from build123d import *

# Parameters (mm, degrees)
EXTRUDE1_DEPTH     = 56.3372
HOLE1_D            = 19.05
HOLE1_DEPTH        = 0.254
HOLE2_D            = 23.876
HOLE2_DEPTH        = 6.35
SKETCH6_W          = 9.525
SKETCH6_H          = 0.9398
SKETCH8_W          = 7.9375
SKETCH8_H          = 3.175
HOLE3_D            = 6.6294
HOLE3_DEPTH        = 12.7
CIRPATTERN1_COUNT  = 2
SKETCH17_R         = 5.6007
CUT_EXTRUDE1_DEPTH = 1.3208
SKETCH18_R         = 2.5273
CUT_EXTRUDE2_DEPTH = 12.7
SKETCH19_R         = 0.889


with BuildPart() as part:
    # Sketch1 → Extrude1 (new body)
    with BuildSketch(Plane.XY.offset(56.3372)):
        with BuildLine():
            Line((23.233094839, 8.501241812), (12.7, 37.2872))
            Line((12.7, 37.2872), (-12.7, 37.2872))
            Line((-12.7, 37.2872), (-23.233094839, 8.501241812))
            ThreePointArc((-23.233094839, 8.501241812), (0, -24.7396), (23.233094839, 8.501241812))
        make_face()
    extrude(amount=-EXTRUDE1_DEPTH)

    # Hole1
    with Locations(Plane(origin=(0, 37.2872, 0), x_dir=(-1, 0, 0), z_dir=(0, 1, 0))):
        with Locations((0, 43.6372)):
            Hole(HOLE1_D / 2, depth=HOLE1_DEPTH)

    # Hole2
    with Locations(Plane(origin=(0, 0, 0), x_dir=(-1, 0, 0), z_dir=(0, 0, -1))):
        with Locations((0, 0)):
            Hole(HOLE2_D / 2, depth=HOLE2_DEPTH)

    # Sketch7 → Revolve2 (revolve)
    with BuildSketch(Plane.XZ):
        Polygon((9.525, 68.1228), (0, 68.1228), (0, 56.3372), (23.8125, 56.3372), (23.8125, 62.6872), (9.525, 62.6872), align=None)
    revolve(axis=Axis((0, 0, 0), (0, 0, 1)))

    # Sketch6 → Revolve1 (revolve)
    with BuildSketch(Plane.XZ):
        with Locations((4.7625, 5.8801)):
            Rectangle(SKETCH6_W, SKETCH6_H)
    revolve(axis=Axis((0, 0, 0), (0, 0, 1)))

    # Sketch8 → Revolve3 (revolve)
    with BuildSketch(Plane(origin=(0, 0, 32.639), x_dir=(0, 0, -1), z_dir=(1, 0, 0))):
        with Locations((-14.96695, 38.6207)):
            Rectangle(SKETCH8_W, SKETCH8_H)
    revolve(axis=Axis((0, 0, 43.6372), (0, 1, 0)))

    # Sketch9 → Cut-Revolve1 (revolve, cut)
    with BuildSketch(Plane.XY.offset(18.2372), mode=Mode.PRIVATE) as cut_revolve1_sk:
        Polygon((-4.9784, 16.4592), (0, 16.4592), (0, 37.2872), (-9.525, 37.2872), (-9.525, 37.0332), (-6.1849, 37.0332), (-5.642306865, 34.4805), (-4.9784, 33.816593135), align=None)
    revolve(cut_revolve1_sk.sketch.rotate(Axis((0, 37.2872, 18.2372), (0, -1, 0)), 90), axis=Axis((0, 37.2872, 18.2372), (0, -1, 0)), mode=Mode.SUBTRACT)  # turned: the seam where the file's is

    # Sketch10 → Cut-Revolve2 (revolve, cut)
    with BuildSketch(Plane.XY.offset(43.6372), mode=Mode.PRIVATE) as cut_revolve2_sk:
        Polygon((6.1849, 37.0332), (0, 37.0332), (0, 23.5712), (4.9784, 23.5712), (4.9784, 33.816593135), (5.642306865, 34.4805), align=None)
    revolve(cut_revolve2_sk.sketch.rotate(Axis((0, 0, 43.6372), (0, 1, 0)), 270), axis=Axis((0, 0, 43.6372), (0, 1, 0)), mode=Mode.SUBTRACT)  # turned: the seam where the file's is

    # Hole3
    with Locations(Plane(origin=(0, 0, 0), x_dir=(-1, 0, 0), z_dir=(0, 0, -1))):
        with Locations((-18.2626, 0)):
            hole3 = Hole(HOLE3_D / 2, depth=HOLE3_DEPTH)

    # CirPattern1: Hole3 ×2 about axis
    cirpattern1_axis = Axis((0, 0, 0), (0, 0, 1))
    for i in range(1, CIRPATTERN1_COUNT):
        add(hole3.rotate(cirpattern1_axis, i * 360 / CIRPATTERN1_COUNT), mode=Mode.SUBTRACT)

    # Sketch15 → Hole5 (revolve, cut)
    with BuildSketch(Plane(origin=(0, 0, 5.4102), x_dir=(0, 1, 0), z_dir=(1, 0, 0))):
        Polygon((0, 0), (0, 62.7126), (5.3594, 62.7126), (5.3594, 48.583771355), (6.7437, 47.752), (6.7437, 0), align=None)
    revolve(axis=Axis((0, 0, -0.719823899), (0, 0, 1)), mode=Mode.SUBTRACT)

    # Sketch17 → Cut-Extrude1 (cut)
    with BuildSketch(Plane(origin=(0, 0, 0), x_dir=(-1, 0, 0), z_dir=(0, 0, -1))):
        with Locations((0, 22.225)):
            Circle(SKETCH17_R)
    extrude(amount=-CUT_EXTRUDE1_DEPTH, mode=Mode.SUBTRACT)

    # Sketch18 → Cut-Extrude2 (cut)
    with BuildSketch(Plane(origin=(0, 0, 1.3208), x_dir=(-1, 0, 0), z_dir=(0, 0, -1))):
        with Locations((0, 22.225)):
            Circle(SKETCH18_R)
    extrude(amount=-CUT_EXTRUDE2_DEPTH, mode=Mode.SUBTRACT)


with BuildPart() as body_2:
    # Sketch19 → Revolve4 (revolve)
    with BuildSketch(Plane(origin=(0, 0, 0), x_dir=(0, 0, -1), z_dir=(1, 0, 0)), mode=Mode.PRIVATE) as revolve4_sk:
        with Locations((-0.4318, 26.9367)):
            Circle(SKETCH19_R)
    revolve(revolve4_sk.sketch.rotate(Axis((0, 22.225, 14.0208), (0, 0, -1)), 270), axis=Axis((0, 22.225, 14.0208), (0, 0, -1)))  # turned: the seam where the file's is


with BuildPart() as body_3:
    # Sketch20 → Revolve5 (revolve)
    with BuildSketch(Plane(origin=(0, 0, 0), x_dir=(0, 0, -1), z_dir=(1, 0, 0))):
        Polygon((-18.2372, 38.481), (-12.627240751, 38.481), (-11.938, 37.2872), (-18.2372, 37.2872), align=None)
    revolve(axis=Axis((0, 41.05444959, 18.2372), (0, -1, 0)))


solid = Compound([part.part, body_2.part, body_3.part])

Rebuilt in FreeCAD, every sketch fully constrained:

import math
import FreeCAD as App
import Part
import Sketcher
Q = App.Units.Quantity


def add_polygon(sketch, points):
    """Adds a closed chain of lines whose ends are joined by coincident constraints."""
    first, n = sketch.GeometryCount, len(points)
    for a, b in zip(points, points[1:] + points[:1]):
        sketch.addGeometry(Part.LineSegment(App.Vector(*a, 0), App.Vector(*b, 0)), False)
    for i in range(n):
        sketch.addConstraint(Sketcher.Constraint("Coincident", first + i, 2, first + (i + 1) % n, 1))

doc = App.newDocument("Part")
params = doc.addObject("Spreadsheet::Sheet", "Params")
for row, (alias, value) in enumerate([
    ("sketch1_width", "1 in"),
    ("sketch1_radius", "0.974 in"),
    ("pad1_length", "2.218 in"),
    ("sketch2_diameter", "0.75 in"),
    ("hole_diameter", "0.75 in"),
    ("hole_depth", "0.01 in"),
    ("sketch3_diameter", "0.94 in"),
    ("hole2_diameter", "0.94 in"),
    ("hole2_depth", "0.25 in"),
    ("sketch4_height", "0.25 in"),
    ("sketch4_width", "0.375 in"),
    ("sketch4_width2", "0.9375 in"),
    ("sketch4_height2", "0.464 in"),
    ("revolution_angle", "360 deg"),
    ("sketch5_width", "0.375 in"),
    ("sketch5_height", "0.037 in"),
    ("revolution2_angle", "360 deg"),
    ("sketch6_width", "0.125 in"),
    ("sketch6_height", "0.3125 in"),
    ("revolution3_angle", "360 deg"),
    ("sketch7_height", "0.82 in"),
    ("sketch7_height2", "0.01 in"),
    ("sketch7_width", "0.196 in"),
    ("sketch7_width2", "0.375 in"),
    ("groove_angle", "360 deg"),
    ("sketch8_height", "0.53 in"),
    ("sketch8_width", "0.196 in"),
    ("groove2_angle", "360 deg"),
    ("sketch9_diameter", "0.261 in"),
    ("hole3_diameter", "0.261 in"),
    ("hole3_depth", "0.5 in"),
    ("sketch10_height", "1.88 in"),
    ("sketch10_width", "0.211 in"),
    ("sketch10_height2", "2.469 in"),
    ("groove3_angle", "360 deg"),
    ("sketch11_diameter", "0.441 in"),
    ("pocket1_length", "0.052 in"),
    ("sketch12_diameter", "0.199 in"),
    ("pocket2_length", "0.5 in"),
    ("sketch13_diameter", "0.07 in"),
    ("revolution4_angle", "360 deg"),
    ("sketch14_width", "0.047 in"),
    ("sketch14_height", "0.248 in"),
    ("revolution5_angle", "360 deg"),
], start=1):
    params.set(f"A{row}", alias)
    params.set(f"B{row}", "=" + value)
    params.setAlias(f"B{row}", alias)

body = doc.addObject("PartDesign::Body", "Body")

sketch1 = body.newObject("Sketcher::SketchObject", "Sketch")
sketch1.AttachmentSupport = (doc.getObject("XY_Plane"), [""])
sketch1.MapMode = "FlatFace"
sketch1.AttachmentOffset = App.Placement(App.Vector(0, 0, 2.218 * 25.4), App.Rotation())
sketch1.addGeometry([
    Part.LineSegment(App.Vector(23.233095, 8.501242, 0), App.Vector(12.7, 37.2872, 0)),
    Part.LineSegment(App.Vector(12.7, 37.2872, 0), App.Vector(-12.7, 37.2872, 0)),
    Part.LineSegment(App.Vector(-12.7, 37.2872, 0), App.Vector(-23.233095, 8.501242, 0)),
    Part.ArcOfCircle(Part.Circle(App.Vector(0, 0, 0), App.Vector(0, 0, 1), 24.7396), math.radians(159.901878), math.radians(380.098122)),
], False)
sketch1.addConstraint([
    Sketcher.Constraint("Coincident", 0, 2, 1, 1),
    Sketcher.Constraint("Coincident", 1, 2, 2, 1),
    Sketcher.Constraint("Tangent", 2, 2, 3, 1),
    Sketcher.Constraint("Tangent", 3, 2, 0, 1),
    Sketcher.Constraint("Horizontal", 1),
    Sketcher.Constraint("Coincident", 3, 3, -1, 1),
    Sketcher.Constraint("Horizontal", 2, 2, 3, 2),
    Sketcher.Constraint("DistanceX", 1, 2, 1, 1, Q("1 in")),
    Sketcher.Constraint("Radius", 3, Q("0.974 in")),
    Sketcher.Constraint("DistanceY", -1, 1, 0, 2, Q("1.468 in")),
])
sketch1.setExpression("Constraints[7]", "Params.sketch1_width")
sketch1.setExpression("Constraints[8]", "Params.sketch1_radius")
pad1 = body.newObject("PartDesign::Pad", "Pad")
pad1.Profile = sketch1
pad1.setExpression("Length", "Params.pad1_length")
pad1.Reversed = True

sketch2 = body.newObject("Sketcher::SketchObject", "Sketch001")
sketch2.AttachmentSupport = (doc.getObject("XZ_Plane"), [""])
sketch2.MapMode = "FlatFace"
sketch2.AttachmentOffset = App.Placement(App.Vector(0, 0, -1.468 * 25.4), App.Rotation())
sketch2.addGeometry(Part.Circle(App.Vector(0, 43.6372, 0), App.Vector(0, 0, 1), 9.525), False)
sketch2.addConstraint([
    Sketcher.Constraint("PointOnObject", 0, 3, -2),
    Sketcher.Constraint("Diameter", 0, Q("0.75 in")),
    Sketcher.Constraint("DistanceY", -1, 1, 0, 3, Q("1.718 in")),
])
sketch2.setExpression("Constraints[1]", "Params.sketch2_diameter")
doc.recompute()
hole = body.newObject("PartDesign::Hole", "Hole")
hole.Profile = sketch2
hole.ThreadType = "None"
hole.setExpression("Diameter", "Params.hole_diameter")
hole.DepthType = "Dimension"
hole.setExpression("Depth", "Params.hole_depth")
hole.DrillPoint = "Flat"
hole.Reversed = True

sketch3 = body.newObject("Sketcher::SketchObject", "Sketch002")
sketch3.AttachmentSupport = (doc.getObject("XY_Plane"), [""])
sketch3.MapMode = "FlatFace"
sketch3.addGeometry(Part.Circle(App.Vector(0, 0, 0), App.Vector(0, 0, 1), 11.938), False)
sketch3.addConstraint([
    Sketcher.Constraint("Coincident", 0, 3, -1, 1),
    Sketcher.Constraint("Diameter", 0, Q("0.94 in")),
])
sketch3.setExpression("Constraints[1]", "Params.sketch3_diameter")
doc.recompute()
hole2 = body.newObject("PartDesign::Hole", "Hole001")
hole2.Profile = sketch3
hole2.ThreadType = "None"
hole2.setExpression("Diameter", "Params.hole2_diameter")
hole2.DepthType = "Dimension"
hole2.setExpression("Depth", "Params.hole2_depth")
hole2.DrillPoint = "Flat"
hole2.Reversed = True

sketch4 = body.newObject("Sketcher::SketchObject", "Sketch003")
sketch4.AttachmentSupport = (doc.getObject("XZ_Plane"), [""])
sketch4.MapMode = "FlatFace"
add_polygon(sketch4, [(9.525, 68.1228), (0, 68.1228), (0, 56.3372), (23.8125, 56.3372), (23.8125, 62.6872), (9.525, 62.6872)])
sketch4.addConstraint([
    Sketcher.Constraint("Horizontal", 0),
    Sketcher.Constraint("Vertical", 1),
    Sketcher.Constraint("Horizontal", 2),
    Sketcher.Constraint("Vertical", 3),
    Sketcher.Constraint("Horizontal", 4),
    Sketcher.Constraint("Vertical", 5),
    Sketcher.Constraint("PointOnObject", 0, 2, -2),
    Sketcher.Constraint("DistanceY", 3, 1, 3, 2, Q("0.25 in")),
    Sketcher.Constraint("DistanceX", 0, 2, 0, 1, Q("0.375 in")),
    Sketcher.Constraint("DistanceX", 2, 1, 2, 2, Q("0.9375 in")),
    Sketcher.Constraint("DistanceY", 1, 2, 1, 1, Q("0.464 in")),
    Sketcher.Constraint("DistanceY", -1, 1, 0, 2, Q("2.682 in")),
])
sketch4.setExpression("Constraints[13]", "Params.sketch4_height")
sketch4.setExpression("Constraints[14]", "Params.sketch4_width")
sketch4.setExpression("Constraints[15]", "Params.sketch4_width2")
sketch4.setExpression("Constraints[16]", "Params.sketch4_height2")
revolution = body.newObject("PartDesign::Revolution", "Revolution")
revolution.Profile = sketch4
revolution.ReferenceAxis = (sketch4, ["V_Axis"])
revolution.setExpression("Angle", "Params.revolution_angle")

sketch5 = body.newObject("Sketcher::SketchObject", "Sketch004")
sketch5.AttachmentSupport = (doc.getObject("XZ_Plane"), [""])
sketch5.MapMode = "FlatFace"
add_polygon(sketch5, [(0, 6.35), (0, 5.4102), (9.525, 5.4102), (9.525, 6.35)])
sketch5.addConstraint([
    Sketcher.Constraint("Vertical", 0),
    Sketcher.Constraint("Horizontal", 1),
    Sketcher.Constraint("Vertical", 2),
    Sketcher.Constraint("Horizontal", 3),
    Sketcher.Constraint("PointOnObject", 0, 2, -2),
    Sketcher.Constraint("DistanceX", 1, 1, 1, 2, Q("0.375 in")),
    Sketcher.Constraint("DistanceY", 0, 2, 0, 1, Q("0.037 in")),
    Sketcher.Constraint("DistanceY", -1, 1, 2, 2, Q("0.25 in")),
])
sketch5.setExpression("Constraints[9]", "Params.sketch5_width")
sketch5.setExpression("Constraints[10]", "Params.sketch5_height")
revolution2 = body.newObject("PartDesign::Revolution", "Revolution001")
revolution2.Profile = sketch5
revolution2.ReferenceAxis = (sketch5, ["V_Axis"])
revolution2.setExpression("Angle", "Params.revolution2_angle")

sketch6 = body.newObject("Sketcher::SketchObject", "Sketch005")
sketch6.AttachmentSupport = (doc.getObject("YZ_Plane"), [""])
sketch6.MapMode = "FlatFace"
add_polygon(sketch6, [(40.2082, 51.5747), (37.0332, 51.5747), (37.0332, 43.6372), (40.2082, 43.6372)])
sketch6.addGeometry(Part.LineSegment(App.Vector(37.0332, 43.6372, 0), App.Vector(40.2082, 43.6372, 0)), True)
sketch6.addConstraint([
    Sketcher.Constraint("Horizontal", 0),
    Sketcher.Constraint("Vertical", 1),
    Sketcher.Constraint("Horizontal", 2),
    Sketcher.Constraint("Vertical", 3),
    Sketcher.Constraint("Horizontal", 4),
    Sketcher.Constraint("Coincident", 4, 1, 1, 2),
    Sketcher.Constraint("Vertical", 3, 2, 4, 2),
    Sketcher.Constraint("DistanceX", 0, 2, 0, 1, Q("0.125 in")),
    Sketcher.Constraint("DistanceY", 1, 2, 1, 1, Q("0.3125 in")),
    Sketcher.Constraint("DistanceX", -1, 1, 0, 2, Q("1.458 in")),
    Sketcher.Constraint("DistanceY", -1, 1, 1, 2, Q("1.718 in")),
])
sketch6.setExpression("Constraints[11]", "Params.sketch6_width")
sketch6.setExpression("Constraints[12]", "Params.sketch6_height")
revolution3 = body.newObject("PartDesign::Revolution", "Revolution002")
revolution3.Profile = sketch6
revolution3.ReferenceAxis = (sketch6, ["Axis0"])
revolution3.setExpression("Angle", "Params.revolution3_angle")

sketch7 = body.newObject("Sketcher::SketchObject", "Sketch006")
sketch7.AttachmentSupport = (doc.getObject("XY_Plane"), [""])
sketch7.MapMode = "FlatFace"
sketch7.AttachmentOffset = App.Placement(App.Vector(0, 0, 0.718 * 25.4), App.Rotation())
add_polygon(sketch7, [(-4.9784, 16.4592), (0, 16.4592), (0, 37.2872), (-9.525, 37.2872), (-9.525, 37.0332), (-6.1849, 37.0332), (-5.642307, 34.4805), (-4.9784, 33.816593)])
sketch7.addConstraint([
    Sketcher.Constraint("Horizontal", 0),
    Sketcher.Constraint("Vertical", 1),
    Sketcher.Constraint("Horizontal", 2),
    Sketcher.Constraint("Vertical", 3),
    Sketcher.Constraint("Horizontal", 4),
    Sketcher.Constraint("Vertical", 7),
    Sketcher.Constraint("PointOnObject", 0, 2, -2),
    Sketcher.Constraint("Angle", 5, Q("-78 deg")),
    Sketcher.Constraint("Angle", 6, Q("-45 deg")),
    Sketcher.Constraint("DistanceY", 1, 1, 1, 2, Q("0.82 in")),
    Sketcher.Constraint("DistanceY", 3, 2, 3, 1, Q("0.01 in")),
    Sketcher.Constraint("DistanceX", 0, 1, 0, 2, Q("0.196 in")),
    Sketcher.Constraint("DistanceX", 2, 2, 2, 1, Q("0.375 in")),
    Sketcher.Constraint("DistanceX", 4, 1, 4, 2, Q("0.1315 in")),
    Sketcher.Constraint("DistanceY", -1, 1, 0, 2, Q("0.648 in")),
    Sketcher.Constraint("DistanceY", -1, 1, 5, 2, Q("1.3575 in")),
])
sketch7.setExpression("Constraints[17]", "Params.sketch7_height")
sketch7.setExpression("Constraints[18]", "Params.sketch7_height2")
sketch7.setExpression("Constraints[19]", "Params.sketch7_width")
sketch7.setExpression("Constraints[20]", "Params.sketch7_width2")
groove = body.newObject("PartDesign::Groove", "Groove")
groove.Profile = sketch7
groove.ReferenceAxis = (sketch7, ["V_Axis"])
groove.setExpression("Angle", "Params.groove_angle")

sketch8 = body.newObject("Sketcher::SketchObject", "Sketch007")
sketch8.AttachmentSupport = (doc.getObject("XY_Plane"), [""])
sketch8.MapMode = "FlatFace"
sketch8.AttachmentOffset = App.Placement(App.Vector(0, 0, 1.718 * 25.4), App.Rotation())
add_polygon(sketch8, [(6.1849, 37.0332), (0, 37.0332), (0, 23.5712), (4.9784, 23.5712), (4.9784, 33.816593), (5.642307, 34.4805)])
sketch8.addConstraint([
    Sketcher.Constraint("Horizontal", 0),
    Sketcher.Constraint("Vertical", 1),
    Sketcher.Constraint("Horizontal", 2),
    Sketcher.Constraint("Vertical", 3),
    Sketcher.Constraint("PointOnObject", 0, 2, -2),
    Sketcher.Constraint("Angle", 4, Q("45 deg")),
    Sketcher.Constraint("Angle", 5, Q("78 deg")),
    Sketcher.Constraint("DistanceY", 1, 2, 1, 1, Q("0.53 in")),
    Sketcher.Constraint("DistanceX", 2, 1, 2, 2, Q("0.196 in")),
    Sketcher.Constraint("DistanceX", 0, 2, 0, 1, Q("0.2435 in")),
    Sketcher.Constraint("DistanceY", -1, 1, 0, 2, Q("1.458 in")),
    Sketcher.Constraint("DistanceY", -1, 1, 4, 2, Q("1.3575 in")),
])
sketch8.setExpression("Constraints[13]", "Params.sketch8_height")
sketch8.setExpression("Constraints[14]", "Params.sketch8_width")
groove2 = body.newObject("PartDesign::Groove", "Groove001")
groove2.Profile = sketch8
groove2.ReferenceAxis = (sketch8, ["V_Axis"])
groove2.setExpression("Angle", "Params.groove2_angle")

sketch9 = body.newObject("Sketcher::SketchObject", "Sketch008")
sketch9.AttachmentSupport = (doc.getObject("XY_Plane"), [""])
sketch9.MapMode = "FlatFace"
sketch9.addGeometry(Part.Circle(App.Vector(18.2626, 0, 0), App.Vector(0, 0, 1), 3.3147), False)
sketch9.addConstraint([
    Sketcher.Constraint("PointOnObject", 0, 3, -1),
    Sketcher.Constraint("Diameter", 0, Q("0.261 in")),
    Sketcher.Constraint("DistanceX", -1, 1, 0, 3, Q("0.719 in")),
])
sketch9.setExpression("Constraints[1]", "Params.sketch9_diameter")
doc.recompute()
hole3 = body.newObject("PartDesign::Hole", "Hole002")
hole3.Profile = sketch9
hole3.ThreadType = "None"
hole3.setExpression("Diameter", "Params.hole3_diameter")
hole3.DepthType = "Dimension"
hole3.setExpression("Depth", "Params.hole3_depth")
hole3.DrillPoint = "Flat"
hole3.Reversed = True
doc.recompute()

polarpattern = body.newObject("PartDesign::PolarPattern", "PolarPattern")
polarpattern.Originals = [hole3]
polarpattern.Axis = (doc.getObject("Z_Axis"), [""])
polarpattern.Angle = 360
polarpattern.Occurrences = 2
body.Tip = polarpattern

sketch10 = body.newObject("Sketcher::SketchObject", "Sketch009")
sketch10.AttachmentSupport = (doc.getObject("YZ_Plane"), [""])
sketch10.MapMode = "FlatFace"
add_polygon(sketch10, [(0, 68.1228), (0, 5.4102), (6.7437, 5.4102), (6.7437, 53.1622), (5.3594, 53.993971), (5.3594, 68.1228)])
sketch10.addConstraint([
    Sketcher.Constraint("Vertical", 0),
    Sketcher.Constraint("Horizontal", 1),
    Sketcher.Constraint("Vertical", 2),
    Sketcher.Constraint("Vertical", 4),
    Sketcher.Constraint("Horizontal", 5),
    Sketcher.Constraint("PointOnObject", 0, 2, -2),
    Sketcher.Constraint("Angle", 3, Q("149 deg")),
    Sketcher.Constraint("DistanceY", 2, 1, 2, 2, Q("1.88 in")),
    Sketcher.Constraint("DistanceX", 5, 2, 5, 1, Q("0.211 in")),
    Sketcher.Constraint("DistanceY", 0, 2, 0, 1, Q("2.469 in")),
    Sketcher.Constraint("DistanceX", 1, 1, 1, 2, Q("0.2655 in")),
    Sketcher.Constraint("DistanceY", -1, 1, 0, 2, Q("0.213 in")),
])
sketch10.setExpression("Constraints[13]", "Params.sketch10_height")
sketch10.setExpression("Constraints[14]", "Params.sketch10_width")
sketch10.setExpression("Constraints[15]", "Params.sketch10_height2")
groove3 = body.newObject("PartDesign::Groove", "Groove002")
groove3.Profile = sketch10
groove3.ReferenceAxis = (sketch10, ["V_Axis"])
groove3.setExpression("Angle", "Params.groove3_angle")

sketch11 = body.newObject("Sketcher::SketchObject", "Sketch010")
sketch11.AttachmentSupport = (doc.getObject("XY_Plane"), [""])
sketch11.MapMode = "FlatFace"
sketch11.addGeometry(Part.Circle(App.Vector(0, 22.225, 0), App.Vector(0, 0, 1), 5.6007), False)
sketch11.addConstraint([
    Sketcher.Constraint("PointOnObject", 0, 3, -2),
    Sketcher.Constraint("Diameter", 0, Q("0.441 in")),
    Sketcher.Constraint("DistanceY", -1, 1, 0, 3, Q("0.875 in")),
])
sketch11.setExpression("Constraints[1]", "Params.sketch11_diameter")
pocket1 = body.newObject("PartDesign::Pocket", "Pocket")
pocket1.Profile = sketch11
pocket1.setExpression("Length", "Params.pocket1_length")
pocket1.Reversed = True

sketch12 = body.newObject("Sketcher::SketchObject", "Sketch011")
sketch12.AttachmentSupport = (doc.getObject("XY_Plane"), [""])
sketch12.MapMode = "FlatFace"
sketch12.AttachmentOffset = App.Placement(App.Vector(0, 0, 0.052 * 25.4), App.Rotation())
sketch12.addGeometry(Part.Circle(App.Vector(0, 22.225, 0), App.Vector(0, 0, 1), 2.5273), False)
sketch12.addConstraint([
    Sketcher.Constraint("PointOnObject", 0, 3, -2),
    Sketcher.Constraint("Diameter", 0, Q("0.199 in")),
    Sketcher.Constraint("DistanceY", -1, 1, 0, 3, Q("0.875 in")),
])
sketch12.setExpression("Constraints[1]", "Params.sketch12_diameter")
pocket2 = body.newObject("PartDesign::Pocket", "Pocket001")
pocket2.Profile = sketch12
pocket2.setExpression("Length", "Params.pocket2_length")
pocket2.Reversed = True
body2 = doc.addObject("PartDesign::Body", "Body001")

sketch13 = body2.newObject("Sketcher::SketchObject", "Sketch012")
sketch13.AttachmentSupport = (doc.getObject("YZ_Plane001"), [""])
sketch13.MapMode = "FlatFace"
sketch13.addGeometry(Part.Circle(App.Vector(26.9367, 0.4318, 0), App.Vector(0, 0, 1), 0.889), False)
sketch13.addGeometry(Part.LineSegment(App.Vector(22.225, 0.4318, 0), App.Vector(22.225, -9.5682, 0)), True)
sketch13.addConstraint([
    Sketcher.Constraint("Vertical", 1),
    Sketcher.Constraint("Horizontal", 0, 3, 1, 1),
    Sketcher.Constraint("Diameter", 0, Q("0.07 in")),
    Sketcher.Constraint("DistanceY", -1, 1, 0, 3, Q("0.017 in")),
    Sketcher.Constraint("DistanceX", -1, 1, 1, 1, Q("0.875 in")),
    Sketcher.Constraint("DistanceY", 1, 2, 1, 1, Q("10 mm")),
    Sketcher.Constraint("DistanceX", -1, 1, 0, 3, Q("1.0605 in")),
])
sketch13.setExpression("Constraints[2]", "Params.sketch13_diameter")
revolution4 = body2.newObject("PartDesign::Revolution", "Revolution003")
revolution4.Profile = sketch13
revolution4.ReferenceAxis = (sketch13, ["Axis0"])
revolution4.setExpression("Angle", "Params.revolution4_angle")
body3 = doc.addObject("PartDesign::Body", "Body002")

sketch14 = body3.newObject("Sketcher::SketchObject", "Sketch013")
sketch14.AttachmentSupport = (doc.getObject("YZ_Plane002"), [""])
sketch14.MapMode = "FlatFace"
add_polygon(sketch14, [(38.481, 12.627241), (38.481, 18.2372), (37.2872, 18.2372), (37.2872, 11.938)])
sketch14.addGeometry(Part.LineSegment(App.Vector(38.481, 18.2372, 0), App.Vector(37.2872, 18.2372, 0)), True)
sketch14.addConstraint([
    Sketcher.Constraint("Vertical", 0),
    Sketcher.Constraint("Horizontal", 1),
    Sketcher.Constraint("Vertical", 2),
    Sketcher.Constraint("Horizontal", 4),
    Sketcher.Constraint("Coincident", 4, 1, 0, 2),
    Sketcher.Constraint("Vertical", 2, 2, 4, 2),
    Sketcher.Constraint("Angle", 3, Q("30 deg")),
    Sketcher.Constraint("DistanceX", 1, 2, 1, 1, Q("0.047 in")),
    Sketcher.Constraint("DistanceY", 2, 2, 2, 1, Q("0.248 in")),
    Sketcher.Constraint("DistanceY", -1, 1, 2, 2, Q("0.47 in")),
    Sketcher.Constraint("DistanceX", -1, 1, 0, 2, Q("1.515 in")),
])
sketch14.setExpression("Constraints[11]", "Params.sketch14_width")
sketch14.setExpression("Constraints[12]", "Params.sketch14_height")
revolution5 = body3.newObject("PartDesign::Revolution", "Revolution004")
revolution5.Profile = sketch14
revolution5.ReferenceAxis = (sketch14, ["Axis0"])
revolution5.setExpression("Angle", "Params.revolution5_angle")

doc.recompute()
